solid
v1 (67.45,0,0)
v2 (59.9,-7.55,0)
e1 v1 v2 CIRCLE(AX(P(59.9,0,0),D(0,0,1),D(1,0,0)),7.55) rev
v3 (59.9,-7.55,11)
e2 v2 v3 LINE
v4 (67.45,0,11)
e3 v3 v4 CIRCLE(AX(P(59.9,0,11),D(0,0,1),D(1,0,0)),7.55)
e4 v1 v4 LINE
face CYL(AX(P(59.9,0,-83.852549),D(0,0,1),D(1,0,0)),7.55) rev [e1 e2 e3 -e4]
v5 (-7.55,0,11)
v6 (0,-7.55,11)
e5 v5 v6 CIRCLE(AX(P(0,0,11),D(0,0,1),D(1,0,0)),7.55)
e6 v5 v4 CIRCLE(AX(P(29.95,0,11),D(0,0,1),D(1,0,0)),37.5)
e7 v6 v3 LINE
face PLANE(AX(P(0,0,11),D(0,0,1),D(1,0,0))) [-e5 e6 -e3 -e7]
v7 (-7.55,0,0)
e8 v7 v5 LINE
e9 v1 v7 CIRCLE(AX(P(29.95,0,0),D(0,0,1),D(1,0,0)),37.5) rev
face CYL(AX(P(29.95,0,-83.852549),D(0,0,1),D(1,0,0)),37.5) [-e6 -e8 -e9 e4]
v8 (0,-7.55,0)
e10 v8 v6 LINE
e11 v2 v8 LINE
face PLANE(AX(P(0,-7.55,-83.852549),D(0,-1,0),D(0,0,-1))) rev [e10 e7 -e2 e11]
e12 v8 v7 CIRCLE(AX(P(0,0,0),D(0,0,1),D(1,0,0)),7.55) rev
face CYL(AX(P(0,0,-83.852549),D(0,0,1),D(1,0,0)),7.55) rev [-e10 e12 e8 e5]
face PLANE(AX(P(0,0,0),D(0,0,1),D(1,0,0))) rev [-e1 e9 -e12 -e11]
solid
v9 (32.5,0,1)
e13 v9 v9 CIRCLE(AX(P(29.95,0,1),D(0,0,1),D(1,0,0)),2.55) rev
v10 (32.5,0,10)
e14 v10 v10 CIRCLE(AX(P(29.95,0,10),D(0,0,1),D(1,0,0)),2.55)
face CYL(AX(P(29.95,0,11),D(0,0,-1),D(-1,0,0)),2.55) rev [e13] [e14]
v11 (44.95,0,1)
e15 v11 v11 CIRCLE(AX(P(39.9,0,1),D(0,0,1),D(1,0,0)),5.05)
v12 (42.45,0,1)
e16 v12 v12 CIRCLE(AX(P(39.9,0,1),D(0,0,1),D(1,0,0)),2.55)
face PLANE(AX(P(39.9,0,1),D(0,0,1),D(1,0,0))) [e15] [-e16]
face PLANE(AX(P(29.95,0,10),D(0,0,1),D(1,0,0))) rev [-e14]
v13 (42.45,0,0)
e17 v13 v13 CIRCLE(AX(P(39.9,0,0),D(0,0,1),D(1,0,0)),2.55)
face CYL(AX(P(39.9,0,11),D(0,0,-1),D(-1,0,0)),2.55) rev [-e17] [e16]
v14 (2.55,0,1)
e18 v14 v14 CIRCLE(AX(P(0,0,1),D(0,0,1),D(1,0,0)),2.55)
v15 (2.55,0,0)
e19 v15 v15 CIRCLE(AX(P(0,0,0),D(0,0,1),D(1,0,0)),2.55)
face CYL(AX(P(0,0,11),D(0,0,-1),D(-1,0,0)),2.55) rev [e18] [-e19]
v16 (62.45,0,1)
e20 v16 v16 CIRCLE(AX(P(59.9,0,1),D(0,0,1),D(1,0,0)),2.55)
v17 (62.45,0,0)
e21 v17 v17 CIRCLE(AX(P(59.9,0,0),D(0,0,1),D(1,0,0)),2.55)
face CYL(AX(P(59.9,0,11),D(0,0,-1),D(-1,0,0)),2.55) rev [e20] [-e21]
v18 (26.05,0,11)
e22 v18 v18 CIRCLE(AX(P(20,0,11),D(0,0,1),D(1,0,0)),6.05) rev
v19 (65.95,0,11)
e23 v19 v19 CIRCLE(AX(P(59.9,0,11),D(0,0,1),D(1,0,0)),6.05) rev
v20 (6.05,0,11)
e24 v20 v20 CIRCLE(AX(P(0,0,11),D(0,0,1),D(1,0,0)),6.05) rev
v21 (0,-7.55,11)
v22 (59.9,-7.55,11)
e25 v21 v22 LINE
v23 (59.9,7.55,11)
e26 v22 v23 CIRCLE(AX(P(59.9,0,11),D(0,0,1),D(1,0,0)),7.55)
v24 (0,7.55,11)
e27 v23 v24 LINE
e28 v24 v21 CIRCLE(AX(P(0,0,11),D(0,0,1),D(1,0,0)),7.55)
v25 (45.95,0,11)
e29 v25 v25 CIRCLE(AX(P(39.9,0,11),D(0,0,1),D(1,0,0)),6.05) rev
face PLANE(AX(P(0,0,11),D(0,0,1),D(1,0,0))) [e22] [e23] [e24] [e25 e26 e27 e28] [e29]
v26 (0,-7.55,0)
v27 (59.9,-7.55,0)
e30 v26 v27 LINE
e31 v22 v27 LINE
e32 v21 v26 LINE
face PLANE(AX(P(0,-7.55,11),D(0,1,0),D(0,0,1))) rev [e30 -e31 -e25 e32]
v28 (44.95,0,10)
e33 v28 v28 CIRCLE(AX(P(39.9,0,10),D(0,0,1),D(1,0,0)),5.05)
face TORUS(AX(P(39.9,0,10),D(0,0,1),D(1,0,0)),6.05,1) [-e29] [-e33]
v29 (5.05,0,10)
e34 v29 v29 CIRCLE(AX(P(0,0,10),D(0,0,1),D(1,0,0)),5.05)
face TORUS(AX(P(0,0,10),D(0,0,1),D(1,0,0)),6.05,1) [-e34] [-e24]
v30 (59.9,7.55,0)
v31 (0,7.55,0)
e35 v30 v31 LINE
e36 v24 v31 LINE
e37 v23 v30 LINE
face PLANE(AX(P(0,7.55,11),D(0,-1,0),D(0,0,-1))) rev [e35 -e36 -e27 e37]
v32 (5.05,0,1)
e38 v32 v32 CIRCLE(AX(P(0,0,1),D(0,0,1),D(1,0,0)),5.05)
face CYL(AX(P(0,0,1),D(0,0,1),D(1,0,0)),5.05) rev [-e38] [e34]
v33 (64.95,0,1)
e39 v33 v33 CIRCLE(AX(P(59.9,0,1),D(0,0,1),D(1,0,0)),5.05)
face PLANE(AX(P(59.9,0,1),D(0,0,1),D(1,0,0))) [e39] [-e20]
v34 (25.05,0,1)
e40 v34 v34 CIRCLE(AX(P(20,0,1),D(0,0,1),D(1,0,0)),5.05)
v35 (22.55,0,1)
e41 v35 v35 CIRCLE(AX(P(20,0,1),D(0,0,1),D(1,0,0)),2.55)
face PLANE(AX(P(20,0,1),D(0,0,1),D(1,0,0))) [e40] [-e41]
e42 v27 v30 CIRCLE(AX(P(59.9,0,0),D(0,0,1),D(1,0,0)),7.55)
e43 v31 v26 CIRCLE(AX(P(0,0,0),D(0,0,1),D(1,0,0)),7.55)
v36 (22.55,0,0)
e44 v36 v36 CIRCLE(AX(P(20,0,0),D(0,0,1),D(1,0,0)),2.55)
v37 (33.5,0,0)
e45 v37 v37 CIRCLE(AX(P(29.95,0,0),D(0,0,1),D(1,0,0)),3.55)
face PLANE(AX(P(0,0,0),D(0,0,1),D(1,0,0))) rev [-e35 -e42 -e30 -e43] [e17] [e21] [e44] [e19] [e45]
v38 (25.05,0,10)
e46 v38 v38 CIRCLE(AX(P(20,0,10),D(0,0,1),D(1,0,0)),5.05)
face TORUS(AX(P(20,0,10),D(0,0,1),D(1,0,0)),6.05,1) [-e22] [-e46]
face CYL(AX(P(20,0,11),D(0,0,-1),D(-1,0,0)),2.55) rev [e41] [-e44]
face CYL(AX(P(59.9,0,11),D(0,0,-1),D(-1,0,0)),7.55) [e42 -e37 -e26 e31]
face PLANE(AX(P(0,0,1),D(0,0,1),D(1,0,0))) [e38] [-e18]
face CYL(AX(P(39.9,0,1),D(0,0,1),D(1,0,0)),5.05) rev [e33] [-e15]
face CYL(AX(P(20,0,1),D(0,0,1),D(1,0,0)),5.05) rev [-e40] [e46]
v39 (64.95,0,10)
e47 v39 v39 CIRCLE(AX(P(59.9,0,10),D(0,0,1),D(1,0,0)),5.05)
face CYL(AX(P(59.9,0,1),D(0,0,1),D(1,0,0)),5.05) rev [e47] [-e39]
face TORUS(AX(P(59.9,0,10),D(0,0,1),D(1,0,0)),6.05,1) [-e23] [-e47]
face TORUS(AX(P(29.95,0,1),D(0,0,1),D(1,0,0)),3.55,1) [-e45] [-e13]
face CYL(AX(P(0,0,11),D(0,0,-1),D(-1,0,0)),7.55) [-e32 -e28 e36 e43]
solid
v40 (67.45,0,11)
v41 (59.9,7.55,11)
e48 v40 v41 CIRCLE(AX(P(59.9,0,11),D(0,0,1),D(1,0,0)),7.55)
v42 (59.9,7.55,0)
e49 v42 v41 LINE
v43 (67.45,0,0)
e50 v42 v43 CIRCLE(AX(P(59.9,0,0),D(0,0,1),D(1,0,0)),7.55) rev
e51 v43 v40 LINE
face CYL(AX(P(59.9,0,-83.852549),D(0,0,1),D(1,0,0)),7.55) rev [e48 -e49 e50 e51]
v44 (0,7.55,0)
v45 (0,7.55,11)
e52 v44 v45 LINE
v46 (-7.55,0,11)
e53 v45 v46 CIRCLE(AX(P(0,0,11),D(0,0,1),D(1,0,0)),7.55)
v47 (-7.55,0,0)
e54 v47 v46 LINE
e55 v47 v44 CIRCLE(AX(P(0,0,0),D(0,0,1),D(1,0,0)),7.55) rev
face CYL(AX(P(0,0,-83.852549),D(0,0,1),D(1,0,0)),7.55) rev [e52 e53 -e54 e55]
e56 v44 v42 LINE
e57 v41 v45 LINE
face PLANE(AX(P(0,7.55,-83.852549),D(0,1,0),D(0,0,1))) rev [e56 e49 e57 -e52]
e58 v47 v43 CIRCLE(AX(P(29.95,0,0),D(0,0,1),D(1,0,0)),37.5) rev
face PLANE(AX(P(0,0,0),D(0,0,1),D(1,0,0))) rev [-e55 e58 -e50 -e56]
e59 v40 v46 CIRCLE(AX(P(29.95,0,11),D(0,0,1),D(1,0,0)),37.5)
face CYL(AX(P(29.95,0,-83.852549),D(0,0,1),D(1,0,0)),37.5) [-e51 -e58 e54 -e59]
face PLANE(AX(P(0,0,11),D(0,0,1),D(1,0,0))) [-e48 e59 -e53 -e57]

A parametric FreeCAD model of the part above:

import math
import FreeCAD as App
import Part
import Sketcher
Q = App.Units.Quantity


def edges_at(feature, points):
    """Names of the edges that pass closest to the given points."""
    edges = feature.Shape.Edges
    near = lambda p: min(range(len(edges)), key=lambda i: edges[i].distToShape(Part.Vertex(*p))[0])
    return sorted({f"Edge{near(p) + 1}" for p in points})

doc = App.newDocument("Part")
body = doc.addObject("PartDesign::Body", "Body")

# Sketch on XY plane
sketch1 = body.newObject("Sketcher::SketchObject", "Sketch")
sketch1.AttachmentSupport = (doc.getObject("XY_Plane"), [""])
sketch1.MapMode = "FlatFace"
sketch1.addGeometry([
    Part.LineSegment(App.Vector(59.9, 7.5, 0), App.Vector(0, 7.5, 0)),  # 0
    Part.ArcOfCircle(Part.Circle(App.Vector(0, 0, 0), App.Vector(0, 0, 1), 7.5), math.radians(90), math.radians(270)),  # 1
    Part.LineSegment(App.Vector(0, -7.5, 0), App.Vector(59.9, -7.5, 0)),  # 2
    Part.ArcOfCircle(Part.Circle(App.Vector(59.9, 0, 0), App.Vector(0, 0, 1), 7.5), math.radians(-90), math.radians(90)),  # 3
    Part.Circle(App.Vector(59.9, 0, 0), App.Vector(0, 0, 1), 2.5),  # 4
    Part.Circle(App.Vector(39.9, 0, 0), App.Vector(0, 0, 1), 2.5),  # 5
    Part.Circle(App.Vector(29.9, 0, 0), App.Vector(0, 0, 1), 2.5),  # 6
    Part.Circle(App.Vector(20, 0, 0), App.Vector(0, 0, 1), 2.5),  # 7
    Part.Circle(App.Vector(0, 0, 0), App.Vector(0, 0, 1), 2.5),  # 8
], False)
sketch1.addConstraint([
    Sketcher.Constraint("Tangent", 0, 2, 1, 1),
    Sketcher.Constraint("Tangent", 1, 2, 2, 1),
    Sketcher.Constraint("Tangent", 2, 2, 3, 1),
    Sketcher.Constraint("Tangent", 3, 2, 0, 1),
    Sketcher.Constraint("Horizontal", 0),
    Sketcher.Constraint("Horizontal", 2),
    Sketcher.Constraint("Coincident", 1, 3, -1, 1),
    Sketcher.Constraint("Coincident", 8, 3, -1, 1),
    Sketcher.Constraint("Coincident", 4, 3, 3, 3),
    Sketcher.Constraint("Equal", 4, 5),
    Sketcher.Constraint("Equal", 5, 6),
    Sketcher.Constraint("Equal", 6, 7),
    Sketcher.Constraint("Equal", 7, 8),
    Sketcher.Constraint("PointOnObject", 5, 3, -1),
    Sketcher.Constraint("PointOnObject", 6, 3, -1),
    Sketcher.Constraint("PointOnObject", 7, 3, -1),
    Sketcher.Constraint("Diameter", 4, Q("5.1 mm")),
    Sketcher.Constraint("Radius", 1, Q("7.55 mm")),
    Sketcher.Constraint("DistanceX", 0, 2, 0, 1, Q("59.9 mm")),
    Sketcher.Constraint("DistanceX", -1, 1, 7, 3, Q("20 mm")),
    Sketcher.Constraint("DistanceX", 5, 3, 3, 3, Q("20 mm")),
    Sketcher.Constraint("DistanceX", -1, 1, 6, 3, Q("29.95 mm")),
])
pad1 = body.newObject("PartDesign::Pad", "Pad")
pad1.Profile = sketch1
pad1.Length = 11

# Sketch on XY plane
sketch2 = body.newObject("Sketcher::SketchObject", "Sketch001")
sketch2.AttachmentSupport = (doc.getObject("XY_Plane"), [""])
sketch2.MapMode = "FlatFace"
sketch2.AttachmentOffset = App.Placement(App.Vector(0, 0, 11), App.Rotation())
sketch2.addGeometry([
    Part.Circle(App.Vector(0, 0, 0), App.Vector(0, 0, 1), 5),
    Part.Circle(App.Vector(60, 0, 0), App.Vector(0, 0, 1), 5),
    Part.Circle(App.Vector(20, 0, 0), App.Vector(0, 0, 1), 5),
    Part.Circle(App.Vector(40, 0, 0), App.Vector(0, 0, 1), 5),
], False)
sketch2.addConstraint([
    Sketcher.Constraint("Coincident", 0, 3, -1, 1),
    Sketcher.Constraint("Equal", 0, 1),
    Sketcher.Constraint("Equal", 1, 2),
    Sketcher.Constraint("Equal", 2, 3),
    Sketcher.Constraint("PointOnObject", 1, 3, -1),
    Sketcher.Constraint("PointOnObject", 2, 3, -1),
    Sketcher.Constraint("PointOnObject", 3, 3, -1),
    Sketcher.Constraint("Diameter", 0, Q("10.1 mm")),
    Sketcher.Constraint("DistanceX", -1, 1, 2, 3, Q("20 mm")),
    Sketcher.Constraint("DistanceX", 3, 3, 1, 3, Q("20 mm")),
    Sketcher.Constraint("DistanceX", -1, 1, 1, 3, Q("59.9 mm")),
])
pocket1 = body.newObject("PartDesign::Pocket", "Pocket")
pocket1.Profile = sketch2
pocket1.Length = 10

# Sketch on XY plane
sketch3 = body.newObject("Sketcher::SketchObject", "Sketch002")
sketch3.AttachmentSupport = (doc.getObject("XY_Plane"), [""])
sketch3.MapMode = "FlatFace"
sketch3.AttachmentOffset = App.Placement(App.Vector(0, 0, 11), App.Rotation())
sketch3.addGeometry(Part.Circle(App.Vector(29.9, 0, 0), App.Vector(0, 0, 1), 2.5), False)
sketch3.addConstraint([
    Sketcher.Constraint("PointOnObject", 0, 3, -1),
    Sketcher.Constraint("Diameter", 0, Q("5.1 mm")),
    Sketcher.Constraint("DistanceX", -1, 1, 0, 3, Q("29.95 mm")),
])
pad2 = body.newObject("PartDesign::Pad", "Pad001")
pad2.Profile = sketch3
pad2.Length = 1
pad2.Reversed = True
doc.recompute()

fillet = body.newObject("PartDesign::Fillet", "Fillet")
fillet.Base = (pad2, edges_at(pad2, [
    (27.4, 0, 0),
    (-5.05, 0, 11),
    (34.85, 0, 11),
    (14.95, 0, 11),
    (54.85, 0, 11),
]))
fillet.Radius = 1
body2 = doc.addObject("PartDesign::Body", "Body001")

# Sketch on XY plane
sketch4 = body2.newObject("Sketcher::SketchObject", "Sketch003")
sketch4.AttachmentSupport = (doc.getObject("XY_Plane001"), [""])
sketch4.MapMode = "FlatFace"
sketch4.AttachmentOffset = App.Placement(App.Vector(0, 0, 11), App.Rotation())
sketch4.addGeometry([
    Part.ArcOfCircle(Part.Circle(App.Vector(30, 0, 0), App.Vector(0, 0, 1), 38), math.radians(180), math.radians(360)),
    Part.ArcOfCircle(Part.Circle(App.Vector(60, 0, 0), App.Vector(0, 0, 1), 8), math.radians(-90), math.radians(0)),
    Part.LineSegment(App.Vector(60, -8, 0), App.Vector(0, -8, 0)),
    Part.ArcOfCircle(Part.Circle(App.Vector(0, 0, 0), App.Vector(0, 0, 1), 8), math.radians(180), math.radians(270)),
], False)
sketch4.addConstraint([
    Sketcher.Constraint("Tangent", 0, 2, 1, 2),
    Sketcher.Constraint("Tangent", 1, 1, 2, 1),
    Sketcher.Constraint("Tangent", 2, 2, 3, 2),
    Sketcher.Constraint("Tangent", 3, 1, 0, 1),
    Sketcher.Constraint("Horizontal", 2),
    Sketcher.Constraint("Coincident", 3, 3, -1, 1),
    Sketcher.Constraint("Equal", 1, 3),
    Sketcher.Constraint("PointOnObject", 0, 3, -1),
    Sketcher.Constraint("Radius", 0, Q("37.5 mm")),
    Sketcher.Constraint("Radius", 1, Q("7.55 mm")),
])
pad3 = body2.newObject("PartDesign::Pad", "Pad002")
pad3.Profile = sketch4
pad3.Length = 11
pad3.Reversed = True
body3 = doc.addObject("PartDesign::Body", "Body002")

# Sketch on XY plane
sketch5 = body3.newObject("Sketcher::SketchObject", "Sketch004")
sketch5.AttachmentSupport = (doc.getObject("XY_Plane002"), [""])
sketch5.MapMode = "FlatFace"
sketch5.AttachmentOffset = App.Placement(App.Vector(0, 0, 11), App.Rotation())
sketch5.addGeometry([
    Part.ArcOfCircle(Part.Circle(App.Vector(60, 0, 0), App.Vector(0, 0, 1), 8), math.radians(0), math.radians(90)),
    Part.ArcOfCircle(Part.Circle(App.Vector(30, 0, 0), App.Vector(0, 0, 1), 38), math.radians(0), math.radians(180)),
    Part.ArcOfCircle(Part.Circle(App.Vector(0, 0, 0), App.Vector(0, 0, 1), 8), math.radians(90), math.radians(180)),
    Part.LineSegment(App.Vector(0, 8, 0), App.Vector(60, 8, 0)),
], False)
sketch5.addConstraint([
    Sketcher.Constraint("Tangent", 0, 1, 1, 1),
    Sketcher.Constraint("Tangent", 1, 2, 2, 2),
    Sketcher.Constraint("Tangent", 2, 1, 3, 1),
    Sketcher.Constraint("Tangent", 3, 2, 0, 2),
    Sketcher.Constraint("Horizontal", 3),
    Sketcher.Constraint("Coincident", 2, 3, -1, 1),
    Sketcher.Constraint("Equal", 0, 2),
    Sketcher.Constraint("PointOnObject", 1, 3, -1),
    Sketcher.Constraint("Radius", 1, Q("37.5 mm")),
    Sketcher.Constraint("Radius", 0, Q("7.55 mm")),
])
pad4 = body3.newObject("PartDesign::Pad", "Pad003")
pad4.Profile = sketch5
pad4.Length = 11
pad4.Reversed = True

doc.recompute()
